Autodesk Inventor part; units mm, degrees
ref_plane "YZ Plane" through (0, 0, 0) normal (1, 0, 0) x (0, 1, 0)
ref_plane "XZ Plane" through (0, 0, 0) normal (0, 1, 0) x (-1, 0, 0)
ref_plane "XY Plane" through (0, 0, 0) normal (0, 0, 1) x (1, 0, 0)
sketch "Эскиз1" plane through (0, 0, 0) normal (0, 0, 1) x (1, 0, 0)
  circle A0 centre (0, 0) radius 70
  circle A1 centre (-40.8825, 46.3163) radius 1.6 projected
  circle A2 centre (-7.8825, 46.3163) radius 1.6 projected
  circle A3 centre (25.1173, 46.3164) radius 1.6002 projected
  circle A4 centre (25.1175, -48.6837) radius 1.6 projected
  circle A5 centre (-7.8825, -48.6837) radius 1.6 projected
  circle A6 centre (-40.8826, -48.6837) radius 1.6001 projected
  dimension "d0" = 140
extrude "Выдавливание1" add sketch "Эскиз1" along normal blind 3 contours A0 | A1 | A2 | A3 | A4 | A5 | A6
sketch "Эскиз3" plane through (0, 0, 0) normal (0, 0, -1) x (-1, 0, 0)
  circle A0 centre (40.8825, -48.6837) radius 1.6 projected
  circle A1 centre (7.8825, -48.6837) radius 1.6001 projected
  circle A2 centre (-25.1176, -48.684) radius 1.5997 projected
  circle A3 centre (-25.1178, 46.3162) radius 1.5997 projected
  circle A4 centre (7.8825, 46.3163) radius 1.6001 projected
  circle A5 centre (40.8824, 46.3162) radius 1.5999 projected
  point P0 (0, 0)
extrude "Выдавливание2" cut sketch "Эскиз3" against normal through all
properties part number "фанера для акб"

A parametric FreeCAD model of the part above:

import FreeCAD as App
import Part
import Sketcher
Q = App.Units.Quantity

doc = App.newDocument("Part")
body = doc.addObject("PartDesign::Body", "Body")

# Sketch on XY plane
sketch1 = doc.addObject("Sketcher::SketchObject", "Sketch")
body.addObject(sketch1)
sketch1.AttachmentSupport = (doc.XY_Plane, [""])
sketch1.MapMode = "FlatFace"
sketch1.addGeometry(Part.Circle(App.Vector(0, 0, 0), App.Vector(0, 0, 1), 70), False)
sketch1.addConstraint([
    Sketcher.Constraint("Coincident", 0, 3, -1, 1),
    Sketcher.Constraint("Diameter", 0, Q("140 mm")),
])
pad1 = doc.addObject("PartDesign::Pad", "Pad")
body.addObject(pad1)
pad1.Profile = sketch1
pad1.Length = 3

# Sketch on XY plane
sketch2 = doc.addObject("Sketcher::SketchObject", "Sketch001")
body.addObject(sketch2)
sketch2.AttachmentSupport = (doc.XY_Plane, [""])
sketch2.MapMode = "FlatFace"
sketch2.addGeometry([
    Part.Circle(App.Vector(-40.9, -48.7, 0), App.Vector(0, 0, 1), 1.6),  # 0
    Part.Circle(App.Vector(-7.9, -48.7, 0), App.Vector(0, 0, 1), 1.6),  # 1
    Part.Circle(App.Vector(25.1, -48.7, 0), App.Vector(0, 0, 1), 1.6),  # 2
    Part.Circle(App.Vector(25.1, 46.3, 0), App.Vector(0, 0, 1), 1.6),  # 3
    Part.Circle(App.Vector(-7.9, 46.3, 0), App.Vector(0, 0, 1), 1.6),  # 4
    Part.Circle(App.Vector(-40.9, 46.3, 0), App.Vector(0, 0, 1), 1.6),  # 5
], False)
sketch2.addConstraint([
    Sketcher.Constraint("Equal", 0, 1),
    Sketcher.Constraint("Equal", 2, 3),
    Sketcher.Constraint("Equal", 1, 4),
    Sketcher.Constraint("Equal", 4, 5),
    Sketcher.Constraint("Horizontal", 0, 3, 1, 3),
    Sketcher.Constraint("Horizontal", 3, 3, 4, 3),
    Sketcher.Constraint("Horizontal", 4, 3, 5, 3),
    Sketcher.Constraint("Vertical", 2, 3, 3, 3),
    Sketcher.Constraint("Vertical", 1, 3, 4, 3),
    Sketcher.Constraint("Vertical", 0, 3, 5, 3),
    Sketcher.Constraint("Diameter", 0, Q("3.2 mm")),
    Sketcher.Constraint("DistanceX", 0, 3, 1, 3, Q("33 mm")),
    Sketcher.Constraint("DistanceX", 1, 3, 2, 3, Q("33 mm")),
    Sketcher.Constraint("DistanceY", 1, 3, 3, 3, Q("95 mm")),
    Sketcher.Constraint("Diameter", 2, Q("3.1994 mm")),
    Sketcher.Constraint("DistanceY", 2, 3, -1, 1, Q("48.684 mm")),
    Sketcher.Constraint("DistanceX", 0, 3, -1, 1, Q("40.8825 mm")),
    Sketcher.Constraint("DistanceY", 0, 3, -1, 1, Q("48.6837 mm")),
])
pocket1 = doc.addObject("PartDesign::Pocket", "Pocket")
body.addObject(pocket1)
pocket1.Profile = sketch2
pocket1.Type = "ThroughAll"
pocket1.Reversed = True

doc.recompute()
